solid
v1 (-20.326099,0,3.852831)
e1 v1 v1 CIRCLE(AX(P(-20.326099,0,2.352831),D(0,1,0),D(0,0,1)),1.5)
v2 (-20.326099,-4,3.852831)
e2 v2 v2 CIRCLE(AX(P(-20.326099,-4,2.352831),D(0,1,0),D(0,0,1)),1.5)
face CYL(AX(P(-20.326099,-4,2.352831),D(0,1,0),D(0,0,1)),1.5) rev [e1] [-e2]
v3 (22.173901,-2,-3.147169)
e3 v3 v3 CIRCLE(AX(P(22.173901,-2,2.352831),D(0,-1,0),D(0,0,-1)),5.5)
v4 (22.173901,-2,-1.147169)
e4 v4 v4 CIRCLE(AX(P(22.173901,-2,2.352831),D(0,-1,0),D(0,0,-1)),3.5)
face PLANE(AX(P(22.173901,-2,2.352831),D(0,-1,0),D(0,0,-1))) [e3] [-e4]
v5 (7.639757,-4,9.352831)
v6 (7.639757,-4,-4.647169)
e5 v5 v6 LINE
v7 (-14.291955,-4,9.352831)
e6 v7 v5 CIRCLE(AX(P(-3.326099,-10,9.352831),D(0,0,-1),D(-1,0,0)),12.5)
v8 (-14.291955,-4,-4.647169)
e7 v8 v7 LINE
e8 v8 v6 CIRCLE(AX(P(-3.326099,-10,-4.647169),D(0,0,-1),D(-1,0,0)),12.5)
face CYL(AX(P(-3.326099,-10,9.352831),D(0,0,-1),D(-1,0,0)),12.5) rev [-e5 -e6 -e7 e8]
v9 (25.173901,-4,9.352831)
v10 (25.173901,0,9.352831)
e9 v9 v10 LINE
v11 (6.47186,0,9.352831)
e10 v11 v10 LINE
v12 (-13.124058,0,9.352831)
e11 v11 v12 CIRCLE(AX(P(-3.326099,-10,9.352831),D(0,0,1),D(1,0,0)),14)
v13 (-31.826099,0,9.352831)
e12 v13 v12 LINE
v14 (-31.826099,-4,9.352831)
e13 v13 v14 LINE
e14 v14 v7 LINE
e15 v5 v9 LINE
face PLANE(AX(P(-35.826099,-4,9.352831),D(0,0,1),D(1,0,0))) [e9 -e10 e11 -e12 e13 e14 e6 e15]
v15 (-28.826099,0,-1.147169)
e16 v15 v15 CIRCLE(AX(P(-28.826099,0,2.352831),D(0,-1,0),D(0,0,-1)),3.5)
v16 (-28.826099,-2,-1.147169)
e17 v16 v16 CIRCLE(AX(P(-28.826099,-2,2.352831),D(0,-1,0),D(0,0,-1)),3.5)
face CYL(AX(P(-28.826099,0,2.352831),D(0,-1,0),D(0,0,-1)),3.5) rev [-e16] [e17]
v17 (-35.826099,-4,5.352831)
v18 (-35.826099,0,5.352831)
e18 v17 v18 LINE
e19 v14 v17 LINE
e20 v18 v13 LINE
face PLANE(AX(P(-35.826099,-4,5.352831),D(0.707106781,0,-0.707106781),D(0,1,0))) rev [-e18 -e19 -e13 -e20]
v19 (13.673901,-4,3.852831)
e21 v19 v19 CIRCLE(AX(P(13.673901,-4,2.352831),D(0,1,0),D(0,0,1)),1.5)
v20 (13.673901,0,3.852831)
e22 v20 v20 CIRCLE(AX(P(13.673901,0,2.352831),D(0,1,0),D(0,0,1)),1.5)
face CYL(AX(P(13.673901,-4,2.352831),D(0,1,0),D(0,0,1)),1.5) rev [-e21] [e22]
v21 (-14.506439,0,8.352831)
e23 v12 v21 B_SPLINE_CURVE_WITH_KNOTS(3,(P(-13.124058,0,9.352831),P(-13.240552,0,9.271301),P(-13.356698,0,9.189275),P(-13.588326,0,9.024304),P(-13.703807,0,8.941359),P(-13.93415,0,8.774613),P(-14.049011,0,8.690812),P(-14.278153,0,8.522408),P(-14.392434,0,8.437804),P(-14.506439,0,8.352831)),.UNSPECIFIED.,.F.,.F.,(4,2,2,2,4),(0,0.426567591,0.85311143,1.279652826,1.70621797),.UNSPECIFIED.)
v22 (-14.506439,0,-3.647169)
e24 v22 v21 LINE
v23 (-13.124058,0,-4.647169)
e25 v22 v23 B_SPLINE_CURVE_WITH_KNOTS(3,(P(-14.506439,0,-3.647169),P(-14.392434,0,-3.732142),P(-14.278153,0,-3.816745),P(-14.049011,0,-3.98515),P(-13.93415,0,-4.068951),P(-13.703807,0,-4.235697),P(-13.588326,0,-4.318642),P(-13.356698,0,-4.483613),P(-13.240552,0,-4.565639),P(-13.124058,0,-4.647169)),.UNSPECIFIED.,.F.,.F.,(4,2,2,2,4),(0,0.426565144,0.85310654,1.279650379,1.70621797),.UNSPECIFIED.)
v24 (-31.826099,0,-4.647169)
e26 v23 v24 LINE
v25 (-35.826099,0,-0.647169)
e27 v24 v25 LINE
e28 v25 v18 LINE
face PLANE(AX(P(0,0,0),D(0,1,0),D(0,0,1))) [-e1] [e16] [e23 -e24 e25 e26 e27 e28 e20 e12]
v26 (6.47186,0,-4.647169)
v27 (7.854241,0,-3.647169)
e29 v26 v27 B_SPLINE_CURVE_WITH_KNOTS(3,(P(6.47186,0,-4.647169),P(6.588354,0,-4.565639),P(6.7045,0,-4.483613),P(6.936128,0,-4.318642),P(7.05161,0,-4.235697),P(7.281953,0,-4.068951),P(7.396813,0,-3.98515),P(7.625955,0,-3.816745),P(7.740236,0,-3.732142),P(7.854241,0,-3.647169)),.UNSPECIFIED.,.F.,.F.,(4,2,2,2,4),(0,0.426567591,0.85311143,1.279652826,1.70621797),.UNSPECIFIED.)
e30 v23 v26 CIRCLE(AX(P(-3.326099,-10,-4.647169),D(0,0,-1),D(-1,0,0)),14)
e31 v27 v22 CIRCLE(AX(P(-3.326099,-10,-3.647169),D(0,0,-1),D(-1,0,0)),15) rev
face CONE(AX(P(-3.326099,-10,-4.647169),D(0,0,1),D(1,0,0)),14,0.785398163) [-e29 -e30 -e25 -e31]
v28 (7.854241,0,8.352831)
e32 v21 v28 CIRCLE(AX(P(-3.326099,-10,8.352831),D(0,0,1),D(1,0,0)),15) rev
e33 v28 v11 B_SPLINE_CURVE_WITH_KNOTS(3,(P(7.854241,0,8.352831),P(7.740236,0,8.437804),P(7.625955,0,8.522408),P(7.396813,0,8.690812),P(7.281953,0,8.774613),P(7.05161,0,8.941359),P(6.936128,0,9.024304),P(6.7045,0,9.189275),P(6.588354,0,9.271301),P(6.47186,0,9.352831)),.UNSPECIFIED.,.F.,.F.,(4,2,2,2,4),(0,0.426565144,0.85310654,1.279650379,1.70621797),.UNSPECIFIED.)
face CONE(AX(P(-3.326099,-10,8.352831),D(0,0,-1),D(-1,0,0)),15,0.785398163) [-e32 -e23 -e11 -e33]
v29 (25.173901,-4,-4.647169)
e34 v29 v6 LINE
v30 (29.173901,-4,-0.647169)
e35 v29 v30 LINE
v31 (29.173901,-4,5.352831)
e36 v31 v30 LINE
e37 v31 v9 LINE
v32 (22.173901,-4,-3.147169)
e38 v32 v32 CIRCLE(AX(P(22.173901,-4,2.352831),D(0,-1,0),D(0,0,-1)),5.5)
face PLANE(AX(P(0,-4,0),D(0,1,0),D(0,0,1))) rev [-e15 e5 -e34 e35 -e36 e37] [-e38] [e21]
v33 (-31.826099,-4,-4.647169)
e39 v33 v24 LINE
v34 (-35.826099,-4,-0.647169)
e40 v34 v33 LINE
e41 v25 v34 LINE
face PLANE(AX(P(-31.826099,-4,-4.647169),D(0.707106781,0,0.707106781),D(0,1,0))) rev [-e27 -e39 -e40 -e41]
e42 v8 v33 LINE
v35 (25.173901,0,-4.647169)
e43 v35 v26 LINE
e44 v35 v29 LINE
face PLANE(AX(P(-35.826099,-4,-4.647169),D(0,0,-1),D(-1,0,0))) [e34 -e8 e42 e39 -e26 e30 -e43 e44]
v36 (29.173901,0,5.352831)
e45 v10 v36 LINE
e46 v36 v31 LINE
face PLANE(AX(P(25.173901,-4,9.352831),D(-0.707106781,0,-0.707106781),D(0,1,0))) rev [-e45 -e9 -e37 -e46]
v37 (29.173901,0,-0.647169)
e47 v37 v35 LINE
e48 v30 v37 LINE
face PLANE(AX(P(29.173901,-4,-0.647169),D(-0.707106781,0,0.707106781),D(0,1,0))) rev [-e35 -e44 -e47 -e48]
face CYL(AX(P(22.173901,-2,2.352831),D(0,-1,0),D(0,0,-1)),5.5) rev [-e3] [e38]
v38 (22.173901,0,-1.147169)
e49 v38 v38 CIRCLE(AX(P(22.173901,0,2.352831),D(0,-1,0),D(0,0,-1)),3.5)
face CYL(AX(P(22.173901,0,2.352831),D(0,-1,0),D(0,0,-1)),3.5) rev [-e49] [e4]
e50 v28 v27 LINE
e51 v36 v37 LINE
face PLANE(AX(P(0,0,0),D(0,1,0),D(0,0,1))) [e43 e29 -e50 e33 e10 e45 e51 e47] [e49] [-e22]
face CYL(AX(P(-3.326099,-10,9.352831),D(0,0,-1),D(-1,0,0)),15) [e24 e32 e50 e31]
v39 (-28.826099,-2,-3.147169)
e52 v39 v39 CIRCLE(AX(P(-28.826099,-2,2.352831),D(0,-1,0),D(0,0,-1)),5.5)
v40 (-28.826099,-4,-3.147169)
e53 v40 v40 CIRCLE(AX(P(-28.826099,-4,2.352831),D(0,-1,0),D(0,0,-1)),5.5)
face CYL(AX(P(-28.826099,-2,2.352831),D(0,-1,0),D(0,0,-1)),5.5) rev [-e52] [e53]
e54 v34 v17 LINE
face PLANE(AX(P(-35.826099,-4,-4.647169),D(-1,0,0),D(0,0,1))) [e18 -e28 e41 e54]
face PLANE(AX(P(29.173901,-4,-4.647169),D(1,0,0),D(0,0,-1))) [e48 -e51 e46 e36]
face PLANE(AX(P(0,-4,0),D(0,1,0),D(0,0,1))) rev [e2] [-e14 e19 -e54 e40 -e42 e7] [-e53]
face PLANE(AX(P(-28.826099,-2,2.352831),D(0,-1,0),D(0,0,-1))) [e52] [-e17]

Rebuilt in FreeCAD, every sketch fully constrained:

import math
import FreeCAD as App
import Part
import Sketcher
from FreeCAD import Vector
Q = App.Units.Quantity


def edges_at(feature, points):
    """Names of the edges that pass closest to the given points."""
    edges = feature.Shape.Edges
    near = lambda p: min(range(len(edges)), key=lambda i: edges[i].distToShape(Part.Vertex(*p))[0])
    return sorted({f"Edge{near(p) + 1}" for p in points})


def add_polygon(sketch, points):
    """Adds a closed chain of lines whose ends are joined by coincident constraints."""
    first, n = sketch.GeometryCount, len(points)
    for a, b in zip(points, points[1:] + points[:1]):
        sketch.addGeometry(Part.LineSegment(App.Vector(*a, 0), App.Vector(*b, 0)), False)
    for i in range(n):
        sketch.addConstraint(Sketcher.Constraint("Coincident", first + i, 2, first + (i + 1) % n, 1))

doc = App.newDocument("Part")
body = doc.addObject("PartDesign::Body", "Body")

# Sketch on XZ plane
sketch1 = body.newObject("Sketcher::SketchObject", "Sketch")
sketch1.AttachmentSupport = (doc.getObject("XZ_Plane"), [""])
sketch1.MapMode = "FlatFace"
add_polygon(sketch1, [(-35.826099, -4.647169), (-35.826099, 9.352831), (29.173901, 9.352831), (29.173901, -4.647169)])  # lines 0-3
sketch1.addConstraint(Sketcher.Constraint("Vertical", 0))
sketch1.addConstraint(Sketcher.Constraint("Horizontal", 1))
sketch1.addConstraint(Sketcher.Constraint("Vertical", 2))
sketch1.addConstraint(Sketcher.Constraint("Horizontal", 3))
sketch1.addConstraint(Sketcher.Constraint("DistanceX", 1, 1, 1, 2, Q("65 mm")))
sketch1.addConstraint(Sketcher.Constraint("DistanceY", 0, 1, 0, 2, Q("14 mm")))
sketch1.addConstraint(Sketcher.Constraint("DistanceX", 0, 2, -1, 1, Q("35.826099 mm")))
sketch1.addConstraint(Sketcher.Constraint("DistanceY", -1, 1, 0, 2, Q("9.352831 mm")))
pad1 = body.newObject("PartDesign::Pad", "Pad")
pad1.Profile = sketch1
pad1.Length = 4

# Sketch on XZ plane
sketch2 = body.newObject("Sketcher::SketchObject", "Sketch001")
sketch2.AttachmentSupport = (doc.getObject("XZ_Plane"), [""])
sketch2.MapMode = "FlatFace"
sketch2.AttachmentOffset = App.Placement(Vector(0, 0, 4), App.Rotation())
sketch2.addGeometry(Part.Circle(Vector(-28.826099, 2.352831, 0), Vector(0, 0, 1), 5.5), False)
sketch2.addGeometry(Part.Circle(Vector(22.173901, 2.352831, 0), Vector(0, 0, 1), 5.5), False)
sketch2.addConstraint(Sketcher.Constraint("Equal", 0, 1))
sketch2.addConstraint(Sketcher.Constraint("Horizontal", 0, 3, 1, 3))
sketch2.addConstraint(Sketcher.Constraint("Diameter", 0, Q("11 mm")))
sketch2.addConstraint(Sketcher.Constraint("DistanceX", 0, 3, 1, 3, Q("51 mm")))
sketch2.addConstraint(Sketcher.Constraint("DistanceX", 0, 3, -1, 1, Q("28.826099 mm")))
sketch2.addConstraint(Sketcher.Constraint("DistanceY", -1, 1, 0, 3, Q("2.352831 mm")))
pocket1 = body.newObject("PartDesign::Pocket", "Pocket")
pocket1.Profile = sketch2
pocket1.Length = 2

# Sketch on XZ plane
sketch3 = body.newObject("Sketcher::SketchObject", "Sketch002")
sketch3.AttachmentSupport = (doc.getObject("XZ_Plane"), [""])
sketch3.MapMode = "FlatFace"
sketch3.AttachmentOffset = App.Placement(Vector(0, 0, 2), App.Rotation())
sketch3.addGeometry(Part.Circle(Vector(-28.826099, 2.352831, 0), Vector(0, 0, 1), 3.5), False)
sketch3.addGeometry(Part.Circle(Vector(22.173901, 2.352831, 0), Vector(0, 0, 1), 3.5), False)
sketch3.addConstraint(Sketcher.Constraint("Equal", 0, 1))
sketch3.addConstraint(Sketcher.Constraint("Horizontal", 0, 3, 1, 3))
sketch3.addConstraint(Sketcher.Constraint("Diameter", 0, Q("7 mm")))
sketch3.addConstraint(Sketcher.Constraint("DistanceX", 0, 3, 1, 3, Q("51 mm")))
sketch3.addConstraint(Sketcher.Constraint("DistanceX", 0, 3, -1, 1, Q("28.826099 mm")))
sketch3.addConstraint(Sketcher.Constraint("DistanceY", -1, 1, 0, 3, Q("2.352831 mm")))
pocket2 = body.newObject("PartDesign::Pocket", "Pocket001")
pocket2.Profile = sketch3
pocket2.Type = "ThroughAll"

# Sketch on XY plane
sketch4 = body.newObject("Sketcher::SketchObject", "Sketch003")
sketch4.AttachmentSupport = (doc.getObject("XY_Plane"), [""])
sketch4.MapMode = "FlatFace"
sketch4.AttachmentOffset = App.Placement(Vector(0, 0, -4.647169), App.Rotation())
sketch4.addGeometry(Part.LineSegment(Vector(10.421628, -4, 0), Vector(-17.073826, -4, 0)), False)
sketch4.addGeometry(Part.ArcOfCircle(Part.Circle(Vector(-3.326099, -10, 0), Vector(0, 0, 1), 15), math.radians(23.578178), math.radians(156.421822)), False)
sketch4.addConstraint(Sketcher.Constraint("Coincident", 0, 1, 1, 1))
sketch4.addConstraint(Sketcher.Constraint("Coincident", 1, 2, 0, 2))
sketch4.addConstraint(Sketcher.Constraint("Horizontal", 0))
sketch4.addConstraint(Sketcher.Constraint("Radius", 1, Q("15 mm")))
sketch4.addConstraint(Sketcher.Constraint("DistanceY", 1, 3, -1, 1, Q("10 mm")))
sketch4.addConstraint(Sketcher.Constraint("DistanceY", 0, 1, -1, 1, Q("4 mm")))
sketch4.addConstraint(Sketcher.Constraint("DistanceX", 1, 3, -1, 1, Q("3.326099 mm")))
pad2 = body.newObject("PartDesign::Pad", "Pad001")
pad2.Profile = sketch4
pad2.Length = 14

# Sketch on XY plane
sketch5 = body.newObject("Sketcher::SketchObject", "Sketch004")
sketch5.AttachmentSupport = (doc.getObject("XY_Plane"), [""])
sketch5.MapMode = "FlatFace"
sketch5.AttachmentOffset = App.Placement(Vector(0, 0, -4.647169), App.Rotation())
sketch5.addGeometry(Part.Circle(Vector(-3.326099, -10, 0), Vector(0, 0, 1), 12.5), False)
sketch5.addConstraint(Sketcher.Constraint("Diameter", 0, Q("25 mm")))
sketch5.addConstraint(Sketcher.Constraint("DistanceY", 0, 3, -1, 1, Q("10 mm")))
sketch5.addConstraint(Sketcher.Constraint("DistanceX", 0, 3, -1, 1, Q("3.326099 mm")))
pocket3 = body.newObject("PartDesign::Pocket", "Pocket002")
pocket3.Profile = sketch5
pocket3.Type = "ThroughAll"
pocket3.Reversed = True

# Sketch on XZ plane
sketch6 = body.newObject("Sketcher::SketchObject", "Sketch005")
sketch6.AttachmentSupport = (doc.getObject("XZ_Plane"), [""])
sketch6.MapMode = "FlatFace"
sketch6.addGeometry(Part.Circle(Vector(-20.326099, 2.352831, 0), Vector(0, 0, 1), 1.5), False)
sketch6.addGeometry(Part.Circle(Vector(13.673901, 2.352831, 0), Vector(0, 0, 1), 1.5), False)
sketch6.addConstraint(Sketcher.Constraint("Equal", 0, 1))
sketch6.addConstraint(Sketcher.Constraint("Horizontal", 0, 3, 1, 3))
sketch6.addConstraint(Sketcher.Constraint("Diameter", 0, Q("3 mm")))
sketch6.addConstraint(Sketcher.Constraint("DistanceX", 0, 3, 1, 3, Q("34 mm")))
sketch6.addConstraint(Sketcher.Constraint("DistanceX", 0, 3, -1, 1, Q("20.326099 mm")))
sketch6.addConstraint(Sketcher.Constraint("DistanceY", -1, 1, 0, 3, Q("2.352831 mm")))
pocket4 = body.newObject("PartDesign::Pocket", "Pocket003")
pocket4.Profile = sketch6
pocket4.Type = "ThroughAll"
pocket4.Reversed = True
doc.recompute()

chamfer = body.newObject("PartDesign::Chamfer", "Chamfer")
chamfer.Base = (pocket4, edges_at(pocket4, [(-3.326, 5, 9.353), (-3.326, 5, -4.647)]))
chamfer.Size = 1
doc.recompute()

chamfer2 = body.newObject("PartDesign::Chamfer", "Chamfer001")
chamfer2.Base = (chamfer, edges_at(chamfer, [
    (-35.826, -2, -4.647),
    (29.174, -2, -4.647),
    (29.174, -2, 9.353),
    (-35.826, -2, 9.353),
]))
chamfer2.Size = 4

doc.recompute()
